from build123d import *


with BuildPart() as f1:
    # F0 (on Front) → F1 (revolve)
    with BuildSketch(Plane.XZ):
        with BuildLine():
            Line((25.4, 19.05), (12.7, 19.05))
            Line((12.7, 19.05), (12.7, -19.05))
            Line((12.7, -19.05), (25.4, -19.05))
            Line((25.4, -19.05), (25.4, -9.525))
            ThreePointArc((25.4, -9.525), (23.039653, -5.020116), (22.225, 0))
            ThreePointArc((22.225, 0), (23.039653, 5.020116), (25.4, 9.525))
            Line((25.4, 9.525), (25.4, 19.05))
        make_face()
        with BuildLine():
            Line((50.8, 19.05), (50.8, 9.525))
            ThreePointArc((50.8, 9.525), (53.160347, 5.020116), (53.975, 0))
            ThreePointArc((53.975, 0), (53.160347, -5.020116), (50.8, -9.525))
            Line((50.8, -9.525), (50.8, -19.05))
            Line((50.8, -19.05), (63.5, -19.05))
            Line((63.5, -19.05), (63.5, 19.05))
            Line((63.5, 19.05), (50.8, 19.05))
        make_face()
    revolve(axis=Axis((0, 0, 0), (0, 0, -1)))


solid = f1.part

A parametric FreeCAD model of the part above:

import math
import FreeCAD as App
import Part
import Sketcher
Q = App.Units.Quantity

doc = App.newDocument("Part")
params = doc.addObject("Spreadsheet::Sheet", "Params")
for row, (alias, value) in enumerate([
    ("sketch1_width", "0.5 in"),
    ("sketch1_height", "1.5 in"),
    ("sketch1_radius", "0.6250002 in"),
    ("revolution_angle", "360 deg"),
], start=1):
    params.set(f"A{row}", alias)
    params.set(f"B{row}", "=" + value)
    params.setAlias(f"B{row}", alias)

body = doc.addObject("PartDesign::Body", "Body")
body.AllowCompound = True

# Sketch on XZ plane
sketch1 = doc.addObject("Sketcher::SketchObject", "Sketch")
body.addObject(sketch1)
sketch1.AttachmentSupport = (doc.XZ_Plane, [""])
sketch1.MapMode = "FlatFace"
sketch1.addGeometry(Part.LineSegment(App.Vector(25.4, 19.05, 0), App.Vector(12.7, 19.05, 0)), False)
sketch1.addGeometry(Part.LineSegment(App.Vector(12.7, 19.05, 0), App.Vector(12.7, -19.05, 0)), False)
sketch1.addGeometry(Part.LineSegment(App.Vector(12.7, -19.05, 0), App.Vector(25.4, -19.05, 0)), False)
sketch1.addGeometry(Part.LineSegment(App.Vector(25.4, -19.05, 0), App.Vector(25.4, -9.525, 0)), False)
sketch1.addGeometry(Part.ArcOfCircle(Part.Circle(App.Vector(38.100005, 0.000002, 0), App.Vector(0, 0, 1), 15.875005), math.radians(-179.999994), math.radians(-143.130108)), False)
sketch1.addGeometry(Part.ArcOfCircle(Part.Circle(App.Vector(38.100005, -0.000002, 0), App.Vector(0, 0, 1), 15.875005), math.radians(143.130108), math.radians(179.999994)), False)
sketch1.addGeometry(Part.LineSegment(App.Vector(25.4, 9.525, 0), App.Vector(25.4, 19.05, 0)), False)
sketch1.addGeometry(Part.LineSegment(App.Vector(50.8, 19.05, 0), App.Vector(50.8, 9.525, 0)), False)
sketch1.addGeometry(Part.ArcOfCircle(Part.Circle(App.Vector(38.099995, -0.000002, 0), App.Vector(0, 0, 1), 15.875005), math.radians(0.000006), math.radians(36.869892)), False)
sketch1.addGeometry(Part.ArcOfCircle(Part.Circle(App.Vector(38.099995, 0.000002, 0), App.Vector(0, 0, 1), 15.875005), math.radians(-36.869892), math.radians(-0.000006)), False)
sketch1.addGeometry(Part.LineSegment(App.Vector(50.8, -9.525, 0), App.Vector(50.8, -19.05, 0)), False)
sketch1.addGeometry(Part.LineSegment(App.Vector(50.8, -19.05, 0), App.Vector(63.5, -19.05, 0)), False)
sketch1.addGeometry(Part.LineSegment(App.Vector(63.5, -19.05, 0), App.Vector(63.5, 19.05, 0)), False)
sketch1.addGeometry(Part.LineSegment(App.Vector(63.5, 19.05, 0), App.Vector(50.8, 19.05, 0)), False)
sketch1.addConstraint(Sketcher.Constraint("Coincident", 0, 2, 1, 1))
sketch1.addConstraint(Sketcher.Constraint("Coincident", 1, 2, 2, 1))
sketch1.addConstraint(Sketcher.Constraint("Coincident", 2, 2, 3, 1))
sketch1.addConstraint(Sketcher.Constraint("Coincident", 3, 2, 4, 2))
sketch1.addConstraint(Sketcher.Constraint("Tangent", 4, 1, 5, 2))
sketch1.addConstraint(Sketcher.Constraint("Coincident", 5, 1, 6, 1))
sketch1.addConstraint(Sketcher.Constraint("Coincident", 6, 2, 0, 1))
sketch1.addConstraint(Sketcher.Constraint("Coincident", 7, 2, 8, 2))
sketch1.addConstraint(Sketcher.Constraint("Tangent", 8, 1, 9, 2))
sketch1.addConstraint(Sketcher.Constraint("Coincident", 9, 1, 10, 1))
sketch1.addConstraint(Sketcher.Constraint("Coincident", 10, 2, 11, 1))
sketch1.addConstraint(Sketcher.Constraint("Coincident", 11, 2, 12, 1))
sketch1.addConstraint(Sketcher.Constraint("Coincident", 12, 2, 13, 1))
sketch1.addConstraint(Sketcher.Constraint("Coincident", 13, 2, 7, 1))
sketch1.addConstraint(Sketcher.Constraint("Horizontal", 0))
sketch1.addConstraint(Sketcher.Constraint("Vertical", 1))
sketch1.addConstraint(Sketcher.Constraint("Horizontal", 2))
sketch1.addConstraint(Sketcher.Constraint("Vertical", 3))
sketch1.addConstraint(Sketcher.Constraint("Vertical", 6))
sketch1.addConstraint(Sketcher.Constraint("Vertical", 7))
sketch1.addConstraint(Sketcher.Constraint("Vertical", 10))
sketch1.addConstraint(Sketcher.Constraint("Horizontal", 11))
sketch1.addConstraint(Sketcher.Constraint("Vertical", 12))
sketch1.addConstraint(Sketcher.Constraint("Horizontal", 13))
sketch1.addConstraint(Sketcher.Constraint("Coincident", 8, 3, 5, 3))
sketch1.addConstraint(Sketcher.Constraint("Equal", 4, 5))
sketch1.addConstraint(Sketcher.Constraint("Equal", 5, 8))
sketch1.addConstraint(Sketcher.Constraint("Equal", 8, 9))
sketch1.addConstraint(Sketcher.Constraint("Symmetric", 3, 2, 5, 1, -1))
sketch1.addConstraint(Sketcher.Constraint("Symmetric", 10, 2, 13, 2, -1))
sketch1.addConstraint(Sketcher.Constraint("PointOnObject", 4, 1, -1))
sketch1.addConstraint(Sketcher.Constraint("PointOnObject", 8, 1, -1))
sketch1.addConstraint(Sketcher.Constraint("Horizontal", 5, 1, 7, 2))
sketch1.addConstraint(Sketcher.Constraint("Horizontal", 2, 2, 10, 2))
sketch1.addConstraint(Sketcher.Constraint("Horizontal", 6, 2, 12, 2))
sketch1.addConstraint(Sketcher.Constraint("Equal", 2, 11))
sketch1.addConstraint(Sketcher.Constraint("DistanceX", 0, 2, 0, 1, Q("0.5 in")))
sketch1.addConstraint(Sketcher.Constraint("DistanceY", 1, 2, 1, 1, Q("1.5 in")))
sketch1.addConstraint(Sketcher.Constraint("DistanceX", -1, 1, 2, 2, Q("1 in")))
sketch1.addConstraint(Sketcher.Constraint("DistanceX", -1, 1, 7, 2, Q("2 in")))
sketch1.addConstraint(Sketcher.Constraint("Radius", 4, Q("0.6250002 in")))
sketch1.setExpression("Constraints[36]", "Params.sketch1_width")
sketch1.setExpression("Constraints[37]", "Params.sketch1_height")
sketch1.setExpression("Constraints[40]", "Params.sketch1_radius")
revolution = doc.addObject("PartDesign::Revolution", "Revolution")
body.addObject(revolution)
revolution.Profile = sketch1
revolution.ReferenceAxis = (sketch1, ["V_Axis"])
revolution.setExpression("Angle", "Params.revolution_angle")

doc.recompute()
